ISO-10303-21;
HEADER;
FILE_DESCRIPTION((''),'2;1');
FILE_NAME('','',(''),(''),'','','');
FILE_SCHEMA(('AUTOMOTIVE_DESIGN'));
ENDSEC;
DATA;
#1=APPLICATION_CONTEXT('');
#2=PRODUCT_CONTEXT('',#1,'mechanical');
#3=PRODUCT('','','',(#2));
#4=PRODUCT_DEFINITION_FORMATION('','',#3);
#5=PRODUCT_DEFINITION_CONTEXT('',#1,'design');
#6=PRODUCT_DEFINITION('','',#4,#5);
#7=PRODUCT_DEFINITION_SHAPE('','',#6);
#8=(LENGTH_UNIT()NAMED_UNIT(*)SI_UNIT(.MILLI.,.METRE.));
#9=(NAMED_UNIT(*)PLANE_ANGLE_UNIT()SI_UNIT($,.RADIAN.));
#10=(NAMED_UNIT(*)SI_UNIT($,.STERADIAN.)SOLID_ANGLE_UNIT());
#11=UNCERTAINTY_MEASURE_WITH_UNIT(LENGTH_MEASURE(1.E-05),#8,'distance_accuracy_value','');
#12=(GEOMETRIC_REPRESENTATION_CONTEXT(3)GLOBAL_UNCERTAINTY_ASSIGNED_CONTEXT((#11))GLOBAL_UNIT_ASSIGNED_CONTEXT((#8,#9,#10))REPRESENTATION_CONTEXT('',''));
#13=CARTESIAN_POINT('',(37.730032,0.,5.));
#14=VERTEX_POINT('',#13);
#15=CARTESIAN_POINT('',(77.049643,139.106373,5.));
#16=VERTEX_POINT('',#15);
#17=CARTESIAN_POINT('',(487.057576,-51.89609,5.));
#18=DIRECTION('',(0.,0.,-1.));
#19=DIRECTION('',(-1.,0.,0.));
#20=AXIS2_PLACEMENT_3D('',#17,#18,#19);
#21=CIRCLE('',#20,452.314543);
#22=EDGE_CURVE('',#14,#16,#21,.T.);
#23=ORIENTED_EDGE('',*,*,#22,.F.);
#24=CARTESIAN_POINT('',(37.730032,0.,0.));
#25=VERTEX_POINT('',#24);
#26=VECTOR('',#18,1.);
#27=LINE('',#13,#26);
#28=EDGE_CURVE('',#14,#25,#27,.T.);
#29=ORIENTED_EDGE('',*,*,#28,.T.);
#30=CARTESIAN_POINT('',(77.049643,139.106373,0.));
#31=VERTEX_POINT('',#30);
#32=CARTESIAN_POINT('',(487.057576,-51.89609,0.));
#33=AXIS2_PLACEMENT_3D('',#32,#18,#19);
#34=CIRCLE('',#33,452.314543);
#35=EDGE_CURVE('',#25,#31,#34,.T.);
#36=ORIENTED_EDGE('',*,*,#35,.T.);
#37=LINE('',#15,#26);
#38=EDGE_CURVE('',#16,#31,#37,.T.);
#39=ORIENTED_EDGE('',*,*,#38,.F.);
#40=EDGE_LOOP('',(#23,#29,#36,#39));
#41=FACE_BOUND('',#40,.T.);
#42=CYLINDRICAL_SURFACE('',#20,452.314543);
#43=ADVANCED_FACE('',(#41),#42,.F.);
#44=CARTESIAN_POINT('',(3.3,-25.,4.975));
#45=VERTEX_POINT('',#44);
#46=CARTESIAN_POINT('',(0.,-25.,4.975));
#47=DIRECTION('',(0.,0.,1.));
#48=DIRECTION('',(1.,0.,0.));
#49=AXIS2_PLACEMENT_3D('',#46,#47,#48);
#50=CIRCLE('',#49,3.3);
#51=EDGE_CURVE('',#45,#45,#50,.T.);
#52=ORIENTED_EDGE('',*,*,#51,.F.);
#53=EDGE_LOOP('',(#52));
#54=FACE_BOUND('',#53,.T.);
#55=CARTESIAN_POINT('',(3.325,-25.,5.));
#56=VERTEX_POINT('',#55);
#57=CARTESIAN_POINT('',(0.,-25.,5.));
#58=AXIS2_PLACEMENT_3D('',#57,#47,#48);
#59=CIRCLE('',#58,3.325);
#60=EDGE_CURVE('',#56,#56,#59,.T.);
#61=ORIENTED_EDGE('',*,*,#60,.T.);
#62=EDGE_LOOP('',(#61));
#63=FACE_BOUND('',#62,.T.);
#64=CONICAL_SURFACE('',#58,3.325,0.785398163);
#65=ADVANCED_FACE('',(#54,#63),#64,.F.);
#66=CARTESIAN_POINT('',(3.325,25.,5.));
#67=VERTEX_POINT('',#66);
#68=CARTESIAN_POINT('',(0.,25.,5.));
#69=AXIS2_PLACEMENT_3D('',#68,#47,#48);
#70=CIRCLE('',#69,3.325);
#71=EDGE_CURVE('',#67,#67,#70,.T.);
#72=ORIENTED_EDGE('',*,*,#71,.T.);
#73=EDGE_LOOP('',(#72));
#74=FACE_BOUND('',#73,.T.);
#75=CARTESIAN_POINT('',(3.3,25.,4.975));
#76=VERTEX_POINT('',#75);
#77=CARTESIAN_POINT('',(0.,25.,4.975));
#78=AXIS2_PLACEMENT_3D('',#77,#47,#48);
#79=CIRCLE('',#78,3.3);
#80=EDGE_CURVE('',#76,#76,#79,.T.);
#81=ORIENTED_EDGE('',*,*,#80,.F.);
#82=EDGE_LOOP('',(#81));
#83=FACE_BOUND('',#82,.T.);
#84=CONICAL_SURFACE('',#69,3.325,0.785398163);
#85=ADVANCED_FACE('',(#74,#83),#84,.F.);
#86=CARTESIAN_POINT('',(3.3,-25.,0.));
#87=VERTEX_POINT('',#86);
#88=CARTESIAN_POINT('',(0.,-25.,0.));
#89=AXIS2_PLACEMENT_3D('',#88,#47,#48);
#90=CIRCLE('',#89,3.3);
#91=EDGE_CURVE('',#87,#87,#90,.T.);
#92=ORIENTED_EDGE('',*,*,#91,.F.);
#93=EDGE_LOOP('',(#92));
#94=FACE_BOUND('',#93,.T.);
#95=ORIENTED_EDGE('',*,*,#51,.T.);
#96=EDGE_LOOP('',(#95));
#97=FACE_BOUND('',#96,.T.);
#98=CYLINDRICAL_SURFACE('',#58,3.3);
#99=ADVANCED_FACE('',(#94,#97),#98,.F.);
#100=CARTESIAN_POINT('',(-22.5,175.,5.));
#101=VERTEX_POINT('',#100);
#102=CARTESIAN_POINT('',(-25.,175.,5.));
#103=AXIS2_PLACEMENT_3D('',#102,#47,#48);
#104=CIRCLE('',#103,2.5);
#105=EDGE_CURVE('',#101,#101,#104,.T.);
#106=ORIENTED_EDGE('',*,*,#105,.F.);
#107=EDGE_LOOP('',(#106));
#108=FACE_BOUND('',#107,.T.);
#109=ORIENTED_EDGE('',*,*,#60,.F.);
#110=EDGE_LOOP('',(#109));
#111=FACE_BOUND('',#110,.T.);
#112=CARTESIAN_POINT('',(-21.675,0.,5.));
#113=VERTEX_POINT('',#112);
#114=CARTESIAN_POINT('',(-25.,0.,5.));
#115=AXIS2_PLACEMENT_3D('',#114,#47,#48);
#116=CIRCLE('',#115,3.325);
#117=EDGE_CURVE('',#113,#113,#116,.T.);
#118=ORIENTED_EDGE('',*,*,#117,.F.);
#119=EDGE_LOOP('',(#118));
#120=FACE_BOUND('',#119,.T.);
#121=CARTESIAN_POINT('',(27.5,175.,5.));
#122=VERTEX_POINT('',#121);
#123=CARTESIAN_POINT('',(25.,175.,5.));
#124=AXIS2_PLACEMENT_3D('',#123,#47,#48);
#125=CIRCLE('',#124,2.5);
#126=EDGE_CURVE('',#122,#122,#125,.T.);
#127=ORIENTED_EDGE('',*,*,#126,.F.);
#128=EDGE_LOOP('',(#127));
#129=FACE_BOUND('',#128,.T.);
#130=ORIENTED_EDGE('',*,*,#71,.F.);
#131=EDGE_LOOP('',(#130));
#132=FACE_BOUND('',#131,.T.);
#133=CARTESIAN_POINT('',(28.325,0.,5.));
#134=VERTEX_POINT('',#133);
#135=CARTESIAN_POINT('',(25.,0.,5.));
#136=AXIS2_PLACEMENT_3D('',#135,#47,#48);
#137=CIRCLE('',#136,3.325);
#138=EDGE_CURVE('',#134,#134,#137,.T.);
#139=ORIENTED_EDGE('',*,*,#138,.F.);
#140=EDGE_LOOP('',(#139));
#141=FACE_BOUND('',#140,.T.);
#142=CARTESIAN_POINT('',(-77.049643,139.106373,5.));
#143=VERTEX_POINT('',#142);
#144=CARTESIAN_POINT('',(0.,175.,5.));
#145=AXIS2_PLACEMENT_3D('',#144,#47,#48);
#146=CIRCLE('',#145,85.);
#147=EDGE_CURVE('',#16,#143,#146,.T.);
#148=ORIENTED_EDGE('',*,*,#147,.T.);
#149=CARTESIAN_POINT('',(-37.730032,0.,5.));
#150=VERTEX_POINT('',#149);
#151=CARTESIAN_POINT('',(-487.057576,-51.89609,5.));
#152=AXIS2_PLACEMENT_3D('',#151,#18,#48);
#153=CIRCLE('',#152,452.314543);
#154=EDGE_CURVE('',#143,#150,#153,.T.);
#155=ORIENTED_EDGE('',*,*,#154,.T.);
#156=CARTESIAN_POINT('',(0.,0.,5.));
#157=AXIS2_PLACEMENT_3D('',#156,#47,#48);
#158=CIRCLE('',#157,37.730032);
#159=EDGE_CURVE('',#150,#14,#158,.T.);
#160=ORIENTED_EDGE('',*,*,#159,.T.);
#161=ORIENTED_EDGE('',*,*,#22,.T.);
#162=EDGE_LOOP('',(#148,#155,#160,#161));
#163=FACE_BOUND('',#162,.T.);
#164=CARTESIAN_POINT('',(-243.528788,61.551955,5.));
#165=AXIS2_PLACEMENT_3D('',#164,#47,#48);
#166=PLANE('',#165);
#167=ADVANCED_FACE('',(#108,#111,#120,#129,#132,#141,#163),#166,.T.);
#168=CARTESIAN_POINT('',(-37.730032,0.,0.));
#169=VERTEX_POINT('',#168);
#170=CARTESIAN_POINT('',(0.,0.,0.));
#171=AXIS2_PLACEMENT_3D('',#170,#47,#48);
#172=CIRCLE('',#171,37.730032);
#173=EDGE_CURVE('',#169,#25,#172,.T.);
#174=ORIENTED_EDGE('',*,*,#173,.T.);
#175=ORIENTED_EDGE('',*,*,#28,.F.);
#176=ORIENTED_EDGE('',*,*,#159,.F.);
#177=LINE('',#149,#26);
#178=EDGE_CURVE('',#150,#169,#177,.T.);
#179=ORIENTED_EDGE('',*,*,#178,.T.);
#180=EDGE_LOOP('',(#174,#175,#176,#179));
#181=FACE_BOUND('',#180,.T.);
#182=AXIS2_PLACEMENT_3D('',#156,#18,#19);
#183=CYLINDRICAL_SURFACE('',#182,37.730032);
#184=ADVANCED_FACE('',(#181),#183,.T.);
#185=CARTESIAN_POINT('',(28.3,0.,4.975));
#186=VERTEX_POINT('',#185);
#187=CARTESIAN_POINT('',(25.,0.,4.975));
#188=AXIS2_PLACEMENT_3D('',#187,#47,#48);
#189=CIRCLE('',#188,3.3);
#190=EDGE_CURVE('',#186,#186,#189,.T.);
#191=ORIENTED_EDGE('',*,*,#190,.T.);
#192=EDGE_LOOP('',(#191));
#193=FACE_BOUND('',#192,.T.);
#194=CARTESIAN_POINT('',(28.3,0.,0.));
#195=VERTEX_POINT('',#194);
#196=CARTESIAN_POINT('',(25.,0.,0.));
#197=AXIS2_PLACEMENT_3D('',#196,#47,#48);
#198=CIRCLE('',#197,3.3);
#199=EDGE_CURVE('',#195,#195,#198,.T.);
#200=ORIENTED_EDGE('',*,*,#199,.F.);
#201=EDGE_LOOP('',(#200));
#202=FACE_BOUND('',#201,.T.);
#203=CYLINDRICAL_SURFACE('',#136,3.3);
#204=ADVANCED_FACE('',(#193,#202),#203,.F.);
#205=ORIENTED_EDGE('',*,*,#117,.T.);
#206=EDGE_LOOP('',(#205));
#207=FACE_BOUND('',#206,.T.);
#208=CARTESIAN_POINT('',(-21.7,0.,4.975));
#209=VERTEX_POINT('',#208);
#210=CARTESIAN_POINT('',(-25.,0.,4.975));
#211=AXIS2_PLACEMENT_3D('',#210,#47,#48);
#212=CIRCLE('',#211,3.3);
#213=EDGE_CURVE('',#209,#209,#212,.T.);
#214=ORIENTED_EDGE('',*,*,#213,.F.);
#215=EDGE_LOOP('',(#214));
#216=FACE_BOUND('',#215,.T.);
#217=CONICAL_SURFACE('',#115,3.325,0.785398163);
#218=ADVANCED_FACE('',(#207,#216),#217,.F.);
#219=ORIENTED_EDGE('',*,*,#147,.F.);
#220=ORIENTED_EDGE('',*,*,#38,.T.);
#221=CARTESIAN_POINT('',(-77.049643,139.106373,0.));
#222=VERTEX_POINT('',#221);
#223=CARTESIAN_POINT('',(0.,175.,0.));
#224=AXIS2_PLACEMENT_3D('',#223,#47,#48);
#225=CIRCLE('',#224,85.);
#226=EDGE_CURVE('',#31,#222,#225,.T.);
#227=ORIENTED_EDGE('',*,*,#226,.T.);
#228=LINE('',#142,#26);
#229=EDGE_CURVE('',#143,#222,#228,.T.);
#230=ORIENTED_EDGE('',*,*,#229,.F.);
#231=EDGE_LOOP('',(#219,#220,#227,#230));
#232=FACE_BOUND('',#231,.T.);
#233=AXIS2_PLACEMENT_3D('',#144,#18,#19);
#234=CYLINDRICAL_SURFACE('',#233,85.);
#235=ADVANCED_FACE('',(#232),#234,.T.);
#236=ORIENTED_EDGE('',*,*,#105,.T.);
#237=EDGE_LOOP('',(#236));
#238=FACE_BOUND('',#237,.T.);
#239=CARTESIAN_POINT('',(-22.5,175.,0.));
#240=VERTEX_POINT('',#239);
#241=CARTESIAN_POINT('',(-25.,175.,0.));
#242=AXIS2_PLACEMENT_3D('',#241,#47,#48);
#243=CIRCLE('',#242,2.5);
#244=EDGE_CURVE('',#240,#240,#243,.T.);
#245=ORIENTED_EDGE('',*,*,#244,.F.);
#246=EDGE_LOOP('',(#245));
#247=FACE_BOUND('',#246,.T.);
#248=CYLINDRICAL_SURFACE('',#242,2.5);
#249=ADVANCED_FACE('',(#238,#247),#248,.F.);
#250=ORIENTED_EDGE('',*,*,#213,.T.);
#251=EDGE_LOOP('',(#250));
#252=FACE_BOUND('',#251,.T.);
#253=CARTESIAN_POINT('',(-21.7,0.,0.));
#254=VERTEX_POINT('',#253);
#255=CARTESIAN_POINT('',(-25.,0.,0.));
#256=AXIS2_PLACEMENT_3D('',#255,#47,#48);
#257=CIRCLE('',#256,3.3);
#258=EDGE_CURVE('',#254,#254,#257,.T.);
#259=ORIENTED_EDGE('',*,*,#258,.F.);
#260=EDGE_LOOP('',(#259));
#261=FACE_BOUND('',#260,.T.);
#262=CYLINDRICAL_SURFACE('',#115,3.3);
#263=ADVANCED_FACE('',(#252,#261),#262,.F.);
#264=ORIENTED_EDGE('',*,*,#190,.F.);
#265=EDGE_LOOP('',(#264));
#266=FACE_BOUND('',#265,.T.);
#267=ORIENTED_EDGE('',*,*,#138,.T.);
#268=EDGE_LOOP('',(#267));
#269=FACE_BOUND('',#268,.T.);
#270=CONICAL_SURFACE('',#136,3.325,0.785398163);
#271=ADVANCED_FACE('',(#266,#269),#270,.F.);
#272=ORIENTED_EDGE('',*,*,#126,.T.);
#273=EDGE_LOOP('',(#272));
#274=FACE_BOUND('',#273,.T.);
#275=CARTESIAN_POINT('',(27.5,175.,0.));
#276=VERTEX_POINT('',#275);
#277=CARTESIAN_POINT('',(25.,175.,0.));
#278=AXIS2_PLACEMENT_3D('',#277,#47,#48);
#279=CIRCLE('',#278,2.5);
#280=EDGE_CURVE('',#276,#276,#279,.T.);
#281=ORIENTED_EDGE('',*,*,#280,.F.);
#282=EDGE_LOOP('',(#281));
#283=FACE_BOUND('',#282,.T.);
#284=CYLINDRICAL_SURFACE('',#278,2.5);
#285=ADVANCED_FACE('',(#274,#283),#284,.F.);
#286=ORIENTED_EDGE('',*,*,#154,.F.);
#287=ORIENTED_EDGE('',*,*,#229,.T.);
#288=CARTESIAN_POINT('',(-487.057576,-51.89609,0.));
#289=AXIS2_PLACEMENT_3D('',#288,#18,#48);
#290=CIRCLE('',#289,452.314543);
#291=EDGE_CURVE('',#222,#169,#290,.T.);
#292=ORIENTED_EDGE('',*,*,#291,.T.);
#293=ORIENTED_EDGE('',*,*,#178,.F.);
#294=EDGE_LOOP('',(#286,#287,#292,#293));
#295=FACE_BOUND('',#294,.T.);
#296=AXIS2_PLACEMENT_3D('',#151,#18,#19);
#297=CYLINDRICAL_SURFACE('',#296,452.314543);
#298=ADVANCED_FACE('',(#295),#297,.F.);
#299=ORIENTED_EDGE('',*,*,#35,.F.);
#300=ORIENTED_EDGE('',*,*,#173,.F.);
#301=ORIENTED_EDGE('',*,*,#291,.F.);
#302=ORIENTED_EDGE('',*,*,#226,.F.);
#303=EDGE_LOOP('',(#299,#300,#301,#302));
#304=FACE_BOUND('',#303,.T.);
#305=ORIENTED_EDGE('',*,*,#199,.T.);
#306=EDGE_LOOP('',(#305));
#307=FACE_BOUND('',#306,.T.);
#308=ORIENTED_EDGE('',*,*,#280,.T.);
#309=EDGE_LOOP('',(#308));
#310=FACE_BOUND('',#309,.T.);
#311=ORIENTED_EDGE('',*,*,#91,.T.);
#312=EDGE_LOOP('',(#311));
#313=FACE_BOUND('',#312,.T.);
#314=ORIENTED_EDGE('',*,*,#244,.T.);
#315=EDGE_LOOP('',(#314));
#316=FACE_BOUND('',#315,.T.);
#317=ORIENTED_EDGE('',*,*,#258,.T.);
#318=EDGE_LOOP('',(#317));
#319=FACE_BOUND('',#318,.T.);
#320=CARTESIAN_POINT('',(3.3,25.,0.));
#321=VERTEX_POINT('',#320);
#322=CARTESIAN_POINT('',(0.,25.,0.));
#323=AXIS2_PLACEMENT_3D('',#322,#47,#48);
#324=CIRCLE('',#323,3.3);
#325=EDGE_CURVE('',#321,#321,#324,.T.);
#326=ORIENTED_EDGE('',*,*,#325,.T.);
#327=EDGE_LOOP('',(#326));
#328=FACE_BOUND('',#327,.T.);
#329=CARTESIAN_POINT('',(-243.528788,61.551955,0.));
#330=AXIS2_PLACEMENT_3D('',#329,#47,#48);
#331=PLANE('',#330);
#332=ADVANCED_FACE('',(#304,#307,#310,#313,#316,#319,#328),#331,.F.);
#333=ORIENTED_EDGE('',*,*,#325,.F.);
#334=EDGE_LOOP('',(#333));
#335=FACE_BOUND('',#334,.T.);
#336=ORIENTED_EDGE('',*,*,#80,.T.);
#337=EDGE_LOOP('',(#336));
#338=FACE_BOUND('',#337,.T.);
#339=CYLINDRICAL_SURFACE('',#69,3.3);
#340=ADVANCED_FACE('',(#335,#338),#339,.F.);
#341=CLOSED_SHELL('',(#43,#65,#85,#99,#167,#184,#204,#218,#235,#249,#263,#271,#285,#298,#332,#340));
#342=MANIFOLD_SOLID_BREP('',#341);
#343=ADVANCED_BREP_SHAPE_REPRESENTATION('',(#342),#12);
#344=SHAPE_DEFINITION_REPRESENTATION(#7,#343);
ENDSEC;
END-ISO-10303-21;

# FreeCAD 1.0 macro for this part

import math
import FreeCAD as App
import Part
import Sketcher

V = App.Vector
Q = App.Units.Quantity

doc = App.newDocument("Part")
body = doc.addObject("PartDesign::Body", "Body")

# Sketch on XY plane
sketch1 = doc.addObject("Sketcher::SketchObject", "Sketch")
body.addObject(sketch1)
sketch1.AttachmentSupport = (doc.XY_Plane, [""])
sketch1.MapMode = "FlatFace"
sketch1.addGeometry(Part.ArcOfCircle(Part.Circle(V(487, -52, 0), V(0, 0, 1), 452), math.radians(155.02), math.radians(173.41)), False)
sketch1.addGeometry(Part.ArcOfCircle(Part.Circle(V(0, 175, 0), V(0, 0, 1), 85), math.radians(-25), math.radians(205)), False)
sketch1.addGeometry(Part.ArcOfCircle(Part.Circle(V(-487, -52, 0), V(0, 0, 1), 452), math.radians(6.59), math.radians(24.98)), False)
sketch1.addGeometry(Part.ArcOfCircle(Part.Circle(V(0, 0, 0), V(0, 0, 1), 38), math.radians(180), math.radians(360)), False)
sketch1.addConstraint(Sketcher.Constraint("Tangent", 0, 1, 1, 1))
sketch1.addConstraint(Sketcher.Constraint("Tangent", 1, 2, 2, 2))
sketch1.addConstraint(Sketcher.Constraint("Coincident", 2, 1, 3, 1))
sketch1.addConstraint(Sketcher.Constraint("Coincident", 3, 2, 0, 2))
sketch1.addConstraint(Sketcher.Constraint("Coincident", 3, 3, -1, 1))
sketch1.addConstraint(Sketcher.Constraint("Equal", 0, 2))
sketch1.addConstraint(Sketcher.Constraint("Symmetric", 0, 3, 2, 3, -2))
sketch1.addConstraint(Sketcher.Constraint("PointOnObject", 2, 1, -1))
sketch1.addConstraint(Sketcher.Constraint("Radius", 1, Q("85 mm")))
sketch1.addConstraint(Sketcher.Constraint("DistanceY", -1, 1, 1, 3, Q("175 mm")))
sketch1.addConstraint(Sketcher.Constraint("Radius", 0, Q("452.314543 mm")))
sketch1.addConstraint(Sketcher.Constraint("Radius", 3, Q("37.730032 mm")))
pad1 = doc.addObject("PartDesign::Pad", "Pad")
body.addObject(pad1)
pad1.Profile = sketch1
pad1.Length = 5

# Sketch on XY plane
sketch2 = doc.addObject("Sketcher::SketchObject", "Sketch001")
body.addObject(sketch2)
sketch2.AttachmentSupport = (doc.XY_Plane, [""])
sketch2.MapMode = "FlatFace"
sketch2.AttachmentOffset = App.Placement(V(0, 0, 5), App.Rotation())
sketch2.addGeometry(Part.Circle(V(0, 25, 0), V(0, 0, 1), 3.3), False)
sketch2.addGeometry(Part.Circle(V(25, 0, 0), V(0, 0, 1), 3.3), False)
sketch2.addGeometry(Part.Circle(V(0, -25, 0), V(0, 0, 1), 3.3), False)
sketch2.addGeometry(Part.Circle(V(-25, 0, 0), V(0, 0, 1), 3.3), False)
sketch2.addConstraint(Sketcher.Constraint("Equal", 0, 1))
sketch2.addConstraint(Sketcher.Constraint("Equal", 1, 2))
sketch2.addConstraint(Sketcher.Constraint("Equal", 2, 3))
sketch2.addConstraint(Sketcher.Constraint("Symmetric", 0, 3, 2, 3, -1, 1))
sketch2.addConstraint(Sketcher.Constraint("Symmetric", 1, 3, 3, 3, -1, 1))
sketch2.addConstraint(Sketcher.Constraint("PointOnObject", 0, 3, -2))
sketch2.addConstraint(Sketcher.Constraint("PointOnObject", 1, 3, -1))
sketch2.addConstraint(Sketcher.Constraint("Diameter", 0, Q("6.6 mm")))
sketch2.addConstraint(Sketcher.Constraint("DistanceY", -1, 1, 0, 3, Q("25 mm")))
sketch2.addConstraint(Sketcher.Constraint("DistanceX", -1, 1, 1, 3, Q("25 mm")))
doc.recompute()
hole = doc.addObject("PartDesign::Hole", "Hole")
body.addObject(hole)
hole.Profile = sketch2
hole.ThreadType = "None"
hole.Diameter = 6.6
hole.DepthType = "ThroughAll"
hole.HoleCutType = "Countersink"
hole.HoleCutDiameter = 6.65
hole.HoleCutCountersinkAngle = 90

# Sketch on XY plane
sketch3 = doc.addObject("Sketcher::SketchObject", "Sketch002")
body.addObject(sketch3)
sketch3.AttachmentSupport = (doc.XY_Plane, [""])
sketch3.MapMode = "FlatFace"
sketch3.AttachmentOffset = App.Placement(V(0, 0, 5), App.Rotation())
sketch3.addGeometry(Part.Circle(V(-25, 175, 0), V(0, 0, 1), 2.5), False)
sketch3.addGeometry(Part.Circle(V(25, 175, 0), V(0, 0, 1), 2.5), False)
sketch3.addConstraint(Sketcher.Constraint("Equal", 0, 1))
sketch3.addConstraint(Sketcher.Constraint("Symmetric", 0, 3, 1, 3, -2))
sketch3.addConstraint(Sketcher.Constraint("Diameter", 0, Q("5 mm")))
sketch3.addConstraint(Sketcher.Constraint("DistanceX", 0, 3, -1, 1, Q("25 mm")))
sketch3.addConstraint(Sketcher.Constraint("DistanceY", -1, 1, 0, 3, Q("175 mm")))
pocket1 = doc.addObject("PartDesign::Pocket", "Pocket")
body.addObject(pocket1)
pocket1.Profile = sketch3
pocket1.Length = 5

doc.recompute()
